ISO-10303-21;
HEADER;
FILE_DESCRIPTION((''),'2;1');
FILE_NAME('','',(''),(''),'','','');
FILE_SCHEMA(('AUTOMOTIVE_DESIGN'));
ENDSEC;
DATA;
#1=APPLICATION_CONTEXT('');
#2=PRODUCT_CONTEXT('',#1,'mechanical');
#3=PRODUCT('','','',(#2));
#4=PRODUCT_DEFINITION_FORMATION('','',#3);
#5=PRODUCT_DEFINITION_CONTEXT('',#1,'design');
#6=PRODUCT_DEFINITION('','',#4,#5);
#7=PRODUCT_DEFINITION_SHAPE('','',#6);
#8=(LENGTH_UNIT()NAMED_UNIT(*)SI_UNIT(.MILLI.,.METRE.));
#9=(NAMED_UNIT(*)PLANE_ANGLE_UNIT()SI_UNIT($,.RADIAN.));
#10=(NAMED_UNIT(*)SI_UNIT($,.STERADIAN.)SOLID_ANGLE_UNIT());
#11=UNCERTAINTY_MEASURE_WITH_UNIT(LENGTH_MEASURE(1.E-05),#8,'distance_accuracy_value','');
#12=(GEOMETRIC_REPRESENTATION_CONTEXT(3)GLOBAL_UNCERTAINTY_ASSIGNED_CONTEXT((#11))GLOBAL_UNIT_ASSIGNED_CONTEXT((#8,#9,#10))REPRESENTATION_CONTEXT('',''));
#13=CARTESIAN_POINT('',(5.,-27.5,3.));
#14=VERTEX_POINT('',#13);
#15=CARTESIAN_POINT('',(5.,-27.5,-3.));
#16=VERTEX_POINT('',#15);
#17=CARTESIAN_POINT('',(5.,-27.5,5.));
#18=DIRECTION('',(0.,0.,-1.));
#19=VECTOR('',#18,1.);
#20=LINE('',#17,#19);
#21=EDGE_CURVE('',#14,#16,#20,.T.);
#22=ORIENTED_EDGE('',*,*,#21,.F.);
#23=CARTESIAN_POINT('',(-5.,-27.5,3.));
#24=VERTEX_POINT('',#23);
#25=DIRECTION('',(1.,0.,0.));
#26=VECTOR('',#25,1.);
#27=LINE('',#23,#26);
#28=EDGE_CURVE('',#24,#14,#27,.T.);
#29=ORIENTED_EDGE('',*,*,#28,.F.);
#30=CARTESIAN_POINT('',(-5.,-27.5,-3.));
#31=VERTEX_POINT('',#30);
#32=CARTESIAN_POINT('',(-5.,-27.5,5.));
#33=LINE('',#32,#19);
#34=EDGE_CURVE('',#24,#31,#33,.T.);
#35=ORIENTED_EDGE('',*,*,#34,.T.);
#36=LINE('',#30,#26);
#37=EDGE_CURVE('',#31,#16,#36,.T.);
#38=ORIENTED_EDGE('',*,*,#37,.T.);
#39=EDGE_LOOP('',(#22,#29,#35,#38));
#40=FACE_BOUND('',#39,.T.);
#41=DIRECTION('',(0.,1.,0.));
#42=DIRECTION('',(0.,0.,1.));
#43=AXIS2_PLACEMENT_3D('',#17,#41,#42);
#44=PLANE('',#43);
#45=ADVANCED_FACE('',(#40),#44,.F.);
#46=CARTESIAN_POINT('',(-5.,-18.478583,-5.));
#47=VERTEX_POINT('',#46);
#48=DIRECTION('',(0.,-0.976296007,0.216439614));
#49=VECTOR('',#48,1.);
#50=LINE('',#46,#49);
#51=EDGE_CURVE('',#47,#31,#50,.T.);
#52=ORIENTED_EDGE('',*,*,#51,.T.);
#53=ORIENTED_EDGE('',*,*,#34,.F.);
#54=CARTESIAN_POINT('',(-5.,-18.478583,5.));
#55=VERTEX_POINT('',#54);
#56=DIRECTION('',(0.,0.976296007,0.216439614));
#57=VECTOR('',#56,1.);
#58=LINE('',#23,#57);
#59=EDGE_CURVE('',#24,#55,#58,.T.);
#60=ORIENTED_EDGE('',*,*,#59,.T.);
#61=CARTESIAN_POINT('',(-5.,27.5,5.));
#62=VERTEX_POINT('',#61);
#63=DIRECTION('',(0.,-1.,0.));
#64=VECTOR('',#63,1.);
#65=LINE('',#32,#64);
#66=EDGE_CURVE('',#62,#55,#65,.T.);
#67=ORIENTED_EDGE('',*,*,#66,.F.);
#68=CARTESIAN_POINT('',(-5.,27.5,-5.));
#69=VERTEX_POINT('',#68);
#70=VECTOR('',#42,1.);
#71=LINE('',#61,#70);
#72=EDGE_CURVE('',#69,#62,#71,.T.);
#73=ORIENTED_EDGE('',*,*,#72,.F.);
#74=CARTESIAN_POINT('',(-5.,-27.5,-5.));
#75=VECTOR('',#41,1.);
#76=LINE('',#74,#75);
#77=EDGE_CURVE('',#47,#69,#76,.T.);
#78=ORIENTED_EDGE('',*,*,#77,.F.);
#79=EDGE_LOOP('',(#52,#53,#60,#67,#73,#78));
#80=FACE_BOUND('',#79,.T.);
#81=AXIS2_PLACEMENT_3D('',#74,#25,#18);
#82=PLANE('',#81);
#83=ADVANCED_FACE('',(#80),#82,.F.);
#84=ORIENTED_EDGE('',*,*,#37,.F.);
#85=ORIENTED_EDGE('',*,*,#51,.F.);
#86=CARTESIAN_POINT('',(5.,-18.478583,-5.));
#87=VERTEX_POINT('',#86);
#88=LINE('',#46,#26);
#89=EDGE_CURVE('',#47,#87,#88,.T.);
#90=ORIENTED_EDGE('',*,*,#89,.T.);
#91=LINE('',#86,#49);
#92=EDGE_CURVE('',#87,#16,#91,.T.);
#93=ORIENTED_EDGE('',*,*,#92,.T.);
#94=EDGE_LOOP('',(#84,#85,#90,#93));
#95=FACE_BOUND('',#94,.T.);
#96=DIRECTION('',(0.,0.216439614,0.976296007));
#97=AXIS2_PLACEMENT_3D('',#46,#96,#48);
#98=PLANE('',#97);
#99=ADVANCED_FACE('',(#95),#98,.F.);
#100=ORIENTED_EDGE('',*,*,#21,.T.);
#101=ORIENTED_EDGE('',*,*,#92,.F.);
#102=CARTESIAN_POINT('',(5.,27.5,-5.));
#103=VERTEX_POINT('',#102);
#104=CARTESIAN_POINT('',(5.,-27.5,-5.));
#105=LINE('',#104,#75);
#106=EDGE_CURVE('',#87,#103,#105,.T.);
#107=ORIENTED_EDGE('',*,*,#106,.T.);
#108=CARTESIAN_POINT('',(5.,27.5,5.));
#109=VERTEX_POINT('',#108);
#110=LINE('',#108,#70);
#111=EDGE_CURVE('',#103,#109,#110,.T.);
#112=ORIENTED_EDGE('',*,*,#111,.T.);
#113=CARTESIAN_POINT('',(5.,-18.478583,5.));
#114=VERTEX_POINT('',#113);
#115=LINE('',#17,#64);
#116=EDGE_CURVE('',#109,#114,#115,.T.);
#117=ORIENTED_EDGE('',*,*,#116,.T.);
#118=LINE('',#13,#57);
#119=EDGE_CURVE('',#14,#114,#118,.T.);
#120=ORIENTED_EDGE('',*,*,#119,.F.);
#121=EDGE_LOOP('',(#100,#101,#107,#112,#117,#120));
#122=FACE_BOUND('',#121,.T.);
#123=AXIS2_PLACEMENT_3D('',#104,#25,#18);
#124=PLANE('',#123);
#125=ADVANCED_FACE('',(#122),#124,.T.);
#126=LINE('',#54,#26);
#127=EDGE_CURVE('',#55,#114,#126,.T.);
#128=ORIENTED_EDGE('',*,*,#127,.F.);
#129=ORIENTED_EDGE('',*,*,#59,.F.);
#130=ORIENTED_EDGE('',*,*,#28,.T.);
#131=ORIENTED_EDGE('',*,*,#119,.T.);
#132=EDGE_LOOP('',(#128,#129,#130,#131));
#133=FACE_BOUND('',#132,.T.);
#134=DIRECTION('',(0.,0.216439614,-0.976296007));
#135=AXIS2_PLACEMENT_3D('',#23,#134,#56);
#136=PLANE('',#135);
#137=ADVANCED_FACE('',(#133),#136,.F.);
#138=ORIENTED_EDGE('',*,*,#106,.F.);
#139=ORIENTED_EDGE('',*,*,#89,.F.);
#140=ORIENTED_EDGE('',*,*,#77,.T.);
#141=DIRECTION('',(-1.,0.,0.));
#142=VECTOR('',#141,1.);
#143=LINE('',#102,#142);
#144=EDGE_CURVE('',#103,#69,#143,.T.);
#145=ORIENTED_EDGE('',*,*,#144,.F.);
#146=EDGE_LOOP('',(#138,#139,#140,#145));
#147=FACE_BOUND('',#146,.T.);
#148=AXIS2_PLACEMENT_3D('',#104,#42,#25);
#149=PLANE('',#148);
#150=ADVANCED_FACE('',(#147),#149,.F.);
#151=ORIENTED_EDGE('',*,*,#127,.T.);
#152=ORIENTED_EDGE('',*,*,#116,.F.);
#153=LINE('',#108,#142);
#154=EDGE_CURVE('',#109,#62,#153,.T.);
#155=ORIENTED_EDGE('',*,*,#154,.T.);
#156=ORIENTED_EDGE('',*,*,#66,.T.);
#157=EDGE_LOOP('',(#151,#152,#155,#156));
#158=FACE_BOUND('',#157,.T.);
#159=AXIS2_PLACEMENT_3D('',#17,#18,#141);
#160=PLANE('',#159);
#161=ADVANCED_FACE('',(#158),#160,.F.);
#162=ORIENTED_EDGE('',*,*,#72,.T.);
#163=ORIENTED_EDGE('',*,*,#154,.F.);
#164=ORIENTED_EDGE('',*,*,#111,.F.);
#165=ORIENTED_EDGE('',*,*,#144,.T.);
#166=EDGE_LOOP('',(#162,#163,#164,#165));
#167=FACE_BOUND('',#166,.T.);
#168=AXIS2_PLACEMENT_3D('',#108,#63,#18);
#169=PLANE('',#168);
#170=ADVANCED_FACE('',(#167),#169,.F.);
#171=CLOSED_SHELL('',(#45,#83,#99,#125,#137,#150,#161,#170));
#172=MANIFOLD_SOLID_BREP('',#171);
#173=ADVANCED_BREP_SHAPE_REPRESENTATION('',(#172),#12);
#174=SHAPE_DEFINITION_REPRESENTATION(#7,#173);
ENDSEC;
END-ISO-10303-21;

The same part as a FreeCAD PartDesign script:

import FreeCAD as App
import Part
import Sketcher

V = App.Vector
Q = App.Units.Quantity

doc = App.newDocument("Part")
params = doc.addObject("Spreadsheet::Sheet", "Params")
for row, (alias, value) in enumerate([
    ("sketch1_width", "55 mm"),
    ("sketch1_height", "10 mm"),
    ("pad1_length", "10 mm"),
    ("sketch2_height", "2 mm"),
], start=1):
    params.set(f"A{row}", alias)
    params.set(f"B{row}", "=" + value)
    params.setAlias(f"B{row}", alias)

body = doc.addObject("PartDesign::Body", "Body")

sketch1 = body.newObject("Sketcher::SketchObject", "Sketch")
sketch1.AttachmentSupport = (doc.getObject("YZ_Plane"), [""])
sketch1.MapMode = "FlatFace"
sketch1.AttachmentOffset = App.Placement(V(0, 0, -5), App.Rotation())
sketch1.addGeometry(Part.LineSegment(V(-28, 5, 0), V(-28, -5, 0)), False)
sketch1.addGeometry(Part.LineSegment(V(-28, -5, 0), V(28, -5, 0)), False)
sketch1.addGeometry(Part.LineSegment(V(28, -5, 0), V(28, 5, 0)), False)
sketch1.addGeometry(Part.LineSegment(V(28, 5, 0), V(-28, 5, 0)), False)
sketch1.addConstraint(Sketcher.Constraint("Coincident", 0, 2, 1, 1))
sketch1.addConstraint(Sketcher.Constraint("Coincident", 1, 2, 2, 1))
sketch1.addConstraint(Sketcher.Constraint("Coincident", 2, 2, 3, 1))
sketch1.addConstraint(Sketcher.Constraint("Coincident", 3, 2, 0, 1))
sketch1.addConstraint(Sketcher.Constraint("Vertical", 0))
sketch1.addConstraint(Sketcher.Constraint("Horizontal", 1))
sketch1.addConstraint(Sketcher.Constraint("Vertical", 2))
sketch1.addConstraint(Sketcher.Constraint("Horizontal", 3))
sketch1.addConstraint(Sketcher.Constraint("Symmetric", 0, 2, 2, 2, -1, 1))
sketch1.addConstraint(Sketcher.Constraint("DistanceX", 1, 1, 1, 2, 55.0))
sketch1.addConstraint(Sketcher.Constraint("DistanceY", 0, 2, 0, 1, 10.0))
sketch1.setExpression("Constraints[9]", "Params.sketch1_width")
sketch1.setExpression("Constraints[10]", "Params.sketch1_height")
pad1 = body.newObject("PartDesign::Pad", "Pad")
pad1.Profile = sketch1
pad1.setExpression("Length", "Params.pad1_length")

sketch2 = body.newObject("Sketcher::SketchObject", "Sketch001")
sketch2.AttachmentSupport = (doc.getObject("YZ_Plane"), [""])
sketch2.MapMode = "FlatFace"
sketch2.addGeometry(Part.LineSegment(V(-27.5, 3, 0), V(-18.5, 5, 0)), False)
sketch2.addGeometry(Part.LineSegment(V(-18.5, 5, 0), V(-27.5, 5, 0)), False)
sketch2.addGeometry(Part.LineSegment(V(-27.5, 5, 0), V(-27.5, 3, 0)), False)
sketch2.addGeometry(Part.LineSegment(V(-27.5, -5, 0), V(-18.5, -5, 0)), False)
sketch2.addGeometry(Part.LineSegment(V(-18.5, -5, 0), V(-27.5, -3, 0)), False)
sketch2.addGeometry(Part.LineSegment(V(-27.5, -3, 0), V(-27.5, -5, 0)), False)
sketch2.addConstraint(Sketcher.Constraint("Coincident", 0, 2, 1, 1))
sketch2.addConstraint(Sketcher.Constraint("Coincident", 1, 2, 2, 1))
sketch2.addConstraint(Sketcher.Constraint("Coincident", 2, 2, 0, 1))
sketch2.addConstraint(Sketcher.Constraint("Coincident", 3, 2, 4, 1))
sketch2.addConstraint(Sketcher.Constraint("Coincident", 4, 2, 5, 1))
sketch2.addConstraint(Sketcher.Constraint("Coincident", 5, 2, 3, 1))
sketch2.addConstraint(Sketcher.Constraint("Horizontal", 1))
sketch2.addConstraint(Sketcher.Constraint("Vertical", 2))
sketch2.addConstraint(Sketcher.Constraint("Horizontal", 3))
sketch2.addConstraint(Sketcher.Constraint("Vertical", 5))
sketch2.addConstraint(Sketcher.Constraint("Symmetric", 0, 2, 3, 2, -1))
sketch2.addConstraint(Sketcher.Constraint("Symmetric", 2, 2, 4, 2, -1))
sketch2.addConstraint(Sketcher.Constraint("DistanceY", 2, 2, 2, 1, 2.0))
sketch2.addConstraint(Sketcher.Constraint("DistanceY", -1, 1, 0, 2, 5.0))
sketch2.addConstraint(Sketcher.Constraint("Angle", 0, Q("12.5 deg")))
sketch2.addConstraint(Sketcher.Constraint("DistanceX", 1, 2, -1, 1, 27.5))
sketch2.setExpression("Constraints[12]", "Params.sketch2_height")
pocket1 = body.newObject("PartDesign::Pocket", "Pocket")
pocket1.Profile = sketch2
pocket1.Type = "ThroughAll"
pocket1.Midplane = True

doc.recompute()
